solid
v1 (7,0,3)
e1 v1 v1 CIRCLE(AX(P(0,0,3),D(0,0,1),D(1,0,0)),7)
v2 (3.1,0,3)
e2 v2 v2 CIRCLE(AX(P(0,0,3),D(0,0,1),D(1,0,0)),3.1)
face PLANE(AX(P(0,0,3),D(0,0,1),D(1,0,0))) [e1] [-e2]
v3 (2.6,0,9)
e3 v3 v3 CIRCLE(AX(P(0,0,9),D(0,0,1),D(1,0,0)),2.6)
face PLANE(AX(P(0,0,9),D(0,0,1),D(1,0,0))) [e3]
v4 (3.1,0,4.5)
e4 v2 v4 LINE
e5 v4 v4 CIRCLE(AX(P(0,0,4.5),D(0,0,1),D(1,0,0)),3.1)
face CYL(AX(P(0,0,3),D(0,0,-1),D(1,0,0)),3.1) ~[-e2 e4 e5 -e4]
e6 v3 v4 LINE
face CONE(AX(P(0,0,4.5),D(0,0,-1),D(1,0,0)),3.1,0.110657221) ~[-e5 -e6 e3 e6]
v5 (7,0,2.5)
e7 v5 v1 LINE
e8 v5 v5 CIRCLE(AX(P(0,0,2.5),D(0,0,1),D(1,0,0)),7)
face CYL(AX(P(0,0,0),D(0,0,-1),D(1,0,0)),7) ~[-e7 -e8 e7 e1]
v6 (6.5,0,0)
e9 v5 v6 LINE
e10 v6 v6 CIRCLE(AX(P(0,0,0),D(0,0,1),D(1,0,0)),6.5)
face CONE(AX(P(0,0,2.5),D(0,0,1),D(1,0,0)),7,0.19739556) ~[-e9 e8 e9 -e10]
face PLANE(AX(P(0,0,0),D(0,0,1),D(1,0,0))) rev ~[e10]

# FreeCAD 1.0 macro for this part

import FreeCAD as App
import Part
import Sketcher
from FreeCAD import Vector
Q = App.Units.Quantity


def edges_at(feature, points):
    """Names of the edges that pass closest to the given points."""
    edges = feature.Shape.Edges
    near = lambda p: min(range(len(edges)), key=lambda i: edges[i].distToShape(Part.Vertex(*p))[0])
    return sorted({f"Edge{near(p) + 1}" for p in points})

doc = App.newDocument("Part")
body = doc.addObject("PartDesign::Body", "Body")

# Sketch on XY plane
sketch1 = body.newObject("Sketcher::SketchObject", "Sketch")
sketch1.AttachmentSupport = (doc.getObject("XY_Plane"), [""])
sketch1.MapMode = "FlatFace"
sketch1.addGeometry(Part.Circle(Vector(0, 0, 0), Vector(0, 0, 1), 7), False)
sketch1.addConstraint([
    Sketcher.Constraint("Coincident", 0, 3, -1, 1),
    Sketcher.Constraint("Diameter", 0, Q("14 mm")),
])
pad1 = body.newObject("PartDesign::Pad", "Pad")
pad1.Profile = sketch1
pad1.Length = 3

# Sketch on XY plane
sketch2 = body.newObject("Sketcher::SketchObject", "Sketch001")
sketch2.AttachmentSupport = (doc.getObject("XY_Plane"), [""])
sketch2.MapMode = "FlatFace"
sketch2.AttachmentOffset = App.Placement(Vector(0, 0, 3), App.Rotation())
sketch2.addGeometry(Part.Circle(Vector(0, 0, 0), Vector(0, 0, 1), 3.1), False)
sketch2.addConstraint([
    Sketcher.Constraint("Coincident", 0, 3, -1, 1),
    Sketcher.Constraint("Diameter", 0, Q("6.2 mm")),
])
pad2 = body.newObject("PartDesign::Pad", "Pad001")
pad2.Profile = sketch2
pad2.Length = 6
doc.recompute()

chamfer = body.newObject("PartDesign::Chamfer", "Chamfer")
chamfer.Base = (pad2, edges_at(pad2, [(-3.1, 0, 9)]))
chamfer.ChamferType = "Two distances"
chamfer.Size = 0.5
chamfer.Size2 = 4.5
chamfer.FlipDirection = True
doc.recompute()

chamfer2 = body.newObject("PartDesign::Chamfer", "Chamfer001")
chamfer2.Base = (chamfer, edges_at(chamfer, [(-7, 0, 0)]))
chamfer2.ChamferType = "Two distances"
chamfer2.Size = 2.5
chamfer2.Size2 = 0.5

doc.recompute()
